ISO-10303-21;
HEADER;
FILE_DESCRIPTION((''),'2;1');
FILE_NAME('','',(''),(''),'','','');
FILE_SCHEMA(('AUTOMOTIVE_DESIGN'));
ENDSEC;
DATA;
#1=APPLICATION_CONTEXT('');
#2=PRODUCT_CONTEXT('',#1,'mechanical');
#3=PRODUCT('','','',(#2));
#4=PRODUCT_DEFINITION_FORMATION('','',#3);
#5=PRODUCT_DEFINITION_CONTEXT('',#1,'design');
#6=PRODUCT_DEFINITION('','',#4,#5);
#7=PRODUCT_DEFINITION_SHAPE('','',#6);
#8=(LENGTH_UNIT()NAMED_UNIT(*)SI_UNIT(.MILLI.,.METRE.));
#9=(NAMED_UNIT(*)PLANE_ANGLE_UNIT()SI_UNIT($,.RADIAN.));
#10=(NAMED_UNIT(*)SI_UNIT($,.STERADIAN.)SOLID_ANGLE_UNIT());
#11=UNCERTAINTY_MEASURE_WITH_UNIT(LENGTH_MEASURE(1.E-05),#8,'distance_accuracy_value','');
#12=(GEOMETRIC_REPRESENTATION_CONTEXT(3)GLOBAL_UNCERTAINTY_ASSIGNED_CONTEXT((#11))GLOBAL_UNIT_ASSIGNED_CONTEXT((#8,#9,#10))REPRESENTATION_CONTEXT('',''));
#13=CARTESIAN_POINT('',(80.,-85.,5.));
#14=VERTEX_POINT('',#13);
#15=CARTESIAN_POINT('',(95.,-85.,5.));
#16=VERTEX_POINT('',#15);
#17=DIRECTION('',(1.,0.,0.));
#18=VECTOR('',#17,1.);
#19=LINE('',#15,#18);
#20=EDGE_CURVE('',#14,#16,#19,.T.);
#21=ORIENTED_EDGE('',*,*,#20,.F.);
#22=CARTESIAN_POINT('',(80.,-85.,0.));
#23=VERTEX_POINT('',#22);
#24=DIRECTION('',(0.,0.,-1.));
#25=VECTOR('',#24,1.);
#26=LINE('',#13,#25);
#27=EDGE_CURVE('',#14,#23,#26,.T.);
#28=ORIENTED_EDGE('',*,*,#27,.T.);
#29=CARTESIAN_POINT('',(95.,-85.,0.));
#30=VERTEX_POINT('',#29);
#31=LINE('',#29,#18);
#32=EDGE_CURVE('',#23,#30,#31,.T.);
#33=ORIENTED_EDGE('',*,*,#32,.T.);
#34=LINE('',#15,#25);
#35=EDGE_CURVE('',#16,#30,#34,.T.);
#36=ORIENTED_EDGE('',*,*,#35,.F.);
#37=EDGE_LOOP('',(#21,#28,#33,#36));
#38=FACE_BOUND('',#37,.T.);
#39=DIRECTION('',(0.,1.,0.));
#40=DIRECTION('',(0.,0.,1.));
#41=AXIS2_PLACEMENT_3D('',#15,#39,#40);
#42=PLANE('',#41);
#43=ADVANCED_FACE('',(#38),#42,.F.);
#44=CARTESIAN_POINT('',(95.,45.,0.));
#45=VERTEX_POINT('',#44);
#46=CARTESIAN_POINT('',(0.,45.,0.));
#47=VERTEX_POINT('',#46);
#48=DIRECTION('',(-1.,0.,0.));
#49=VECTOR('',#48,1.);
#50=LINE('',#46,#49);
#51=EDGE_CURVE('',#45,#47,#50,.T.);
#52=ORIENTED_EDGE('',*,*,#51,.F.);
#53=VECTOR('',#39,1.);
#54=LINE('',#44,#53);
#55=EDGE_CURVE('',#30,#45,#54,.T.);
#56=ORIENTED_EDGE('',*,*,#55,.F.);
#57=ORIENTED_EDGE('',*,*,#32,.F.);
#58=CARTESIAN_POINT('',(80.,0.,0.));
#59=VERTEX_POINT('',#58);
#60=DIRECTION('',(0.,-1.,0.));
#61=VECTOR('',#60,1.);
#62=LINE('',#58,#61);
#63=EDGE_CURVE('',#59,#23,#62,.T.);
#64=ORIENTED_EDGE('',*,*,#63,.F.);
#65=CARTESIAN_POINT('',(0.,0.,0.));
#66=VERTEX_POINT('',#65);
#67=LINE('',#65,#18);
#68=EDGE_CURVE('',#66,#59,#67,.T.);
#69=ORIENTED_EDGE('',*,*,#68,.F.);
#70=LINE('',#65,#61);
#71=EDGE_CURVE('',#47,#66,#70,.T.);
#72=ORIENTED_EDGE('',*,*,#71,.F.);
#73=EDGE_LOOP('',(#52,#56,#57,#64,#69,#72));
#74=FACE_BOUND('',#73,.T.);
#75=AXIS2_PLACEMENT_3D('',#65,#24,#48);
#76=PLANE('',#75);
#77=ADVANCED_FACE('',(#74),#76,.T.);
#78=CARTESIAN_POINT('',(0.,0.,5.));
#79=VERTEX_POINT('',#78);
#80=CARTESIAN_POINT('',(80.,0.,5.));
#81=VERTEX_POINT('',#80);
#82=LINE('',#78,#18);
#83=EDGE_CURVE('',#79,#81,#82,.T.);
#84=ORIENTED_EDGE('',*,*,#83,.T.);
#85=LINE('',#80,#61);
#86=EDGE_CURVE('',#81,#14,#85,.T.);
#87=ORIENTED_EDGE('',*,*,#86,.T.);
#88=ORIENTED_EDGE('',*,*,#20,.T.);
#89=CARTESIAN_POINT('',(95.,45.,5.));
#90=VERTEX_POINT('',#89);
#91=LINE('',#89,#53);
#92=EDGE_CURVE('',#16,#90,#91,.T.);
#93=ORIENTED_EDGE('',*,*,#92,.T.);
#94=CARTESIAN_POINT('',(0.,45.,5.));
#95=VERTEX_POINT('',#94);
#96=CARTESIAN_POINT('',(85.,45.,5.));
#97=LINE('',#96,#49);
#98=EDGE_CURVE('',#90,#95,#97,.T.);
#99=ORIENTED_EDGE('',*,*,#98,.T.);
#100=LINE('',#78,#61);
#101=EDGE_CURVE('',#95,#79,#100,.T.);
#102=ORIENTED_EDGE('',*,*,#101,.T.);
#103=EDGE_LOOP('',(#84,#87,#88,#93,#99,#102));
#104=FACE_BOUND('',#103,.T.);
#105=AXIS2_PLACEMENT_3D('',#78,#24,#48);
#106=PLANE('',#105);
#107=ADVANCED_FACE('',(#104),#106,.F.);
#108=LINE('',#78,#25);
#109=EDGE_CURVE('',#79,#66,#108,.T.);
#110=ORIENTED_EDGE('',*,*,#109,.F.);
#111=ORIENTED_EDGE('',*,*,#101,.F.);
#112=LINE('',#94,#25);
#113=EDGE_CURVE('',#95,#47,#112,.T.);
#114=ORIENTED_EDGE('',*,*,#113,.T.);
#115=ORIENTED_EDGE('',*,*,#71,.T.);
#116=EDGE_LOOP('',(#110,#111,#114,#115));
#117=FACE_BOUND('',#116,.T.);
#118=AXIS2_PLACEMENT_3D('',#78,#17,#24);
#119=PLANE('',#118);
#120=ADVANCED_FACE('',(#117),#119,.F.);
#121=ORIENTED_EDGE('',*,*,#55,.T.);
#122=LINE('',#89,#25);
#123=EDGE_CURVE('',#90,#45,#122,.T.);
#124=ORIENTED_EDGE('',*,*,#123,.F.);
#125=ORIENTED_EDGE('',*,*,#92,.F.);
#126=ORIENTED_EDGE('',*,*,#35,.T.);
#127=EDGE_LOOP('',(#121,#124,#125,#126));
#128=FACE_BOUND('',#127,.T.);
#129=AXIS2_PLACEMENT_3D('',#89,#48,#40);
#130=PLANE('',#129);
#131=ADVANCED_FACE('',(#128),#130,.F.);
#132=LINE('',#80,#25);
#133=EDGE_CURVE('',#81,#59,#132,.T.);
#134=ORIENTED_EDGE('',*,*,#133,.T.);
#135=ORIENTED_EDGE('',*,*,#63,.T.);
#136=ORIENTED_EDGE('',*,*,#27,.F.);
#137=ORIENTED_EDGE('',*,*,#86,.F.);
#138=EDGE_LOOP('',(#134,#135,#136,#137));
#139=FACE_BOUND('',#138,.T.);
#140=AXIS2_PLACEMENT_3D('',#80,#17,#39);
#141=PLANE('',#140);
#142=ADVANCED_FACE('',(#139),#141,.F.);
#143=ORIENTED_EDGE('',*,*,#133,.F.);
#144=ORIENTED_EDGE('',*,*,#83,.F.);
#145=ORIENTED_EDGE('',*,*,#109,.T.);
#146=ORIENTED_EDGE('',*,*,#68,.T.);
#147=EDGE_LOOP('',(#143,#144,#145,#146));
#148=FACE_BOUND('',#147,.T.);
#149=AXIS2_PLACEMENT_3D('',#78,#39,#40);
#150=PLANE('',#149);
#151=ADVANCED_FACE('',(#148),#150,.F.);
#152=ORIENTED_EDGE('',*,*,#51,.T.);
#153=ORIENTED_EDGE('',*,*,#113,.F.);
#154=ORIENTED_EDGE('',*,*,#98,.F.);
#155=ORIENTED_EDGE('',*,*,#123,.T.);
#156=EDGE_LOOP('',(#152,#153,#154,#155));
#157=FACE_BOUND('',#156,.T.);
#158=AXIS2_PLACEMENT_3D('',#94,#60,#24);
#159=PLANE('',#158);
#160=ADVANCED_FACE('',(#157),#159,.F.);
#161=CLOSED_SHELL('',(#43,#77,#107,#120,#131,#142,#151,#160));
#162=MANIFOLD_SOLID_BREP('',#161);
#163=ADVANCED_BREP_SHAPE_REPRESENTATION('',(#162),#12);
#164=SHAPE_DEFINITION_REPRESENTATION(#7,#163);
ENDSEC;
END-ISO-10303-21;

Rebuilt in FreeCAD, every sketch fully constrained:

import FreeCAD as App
import Part
import Sketcher

V = App.Vector
Q = App.Units.Quantity


def add_polygon(sketch, points):
    """Adds a closed chain of lines whose ends are joined by coincident constraints."""
    first, n = sketch.GeometryCount, len(points)
    for a, b in zip(points, points[1:] + points[:1]):
        sketch.addGeometry(Part.LineSegment(App.Vector(*a, 0), App.Vector(*b, 0)), False)
    for i in range(n):
        sketch.addConstraint(Sketcher.Constraint("Coincident", first + i, 2, first + (i + 1) % n, 1))

doc = App.newDocument("Part")
body = doc.addObject("PartDesign::Body", "Body")

sketch1 = body.newObject("Sketcher::SketchObject", "Sketch")
sketch1.AttachmentSupport = (doc.getObject("XY_Plane"), [""])
sketch1.MapMode = "FlatFace"
add_polygon(sketch1, [(0, 0), (80, 0), (80, -85), (95, -85), (95, 45), (0, 45)])
sketch1.addConstraint([
    Sketcher.Constraint("Horizontal", 0),
    Sketcher.Constraint("Vertical", 1),
    Sketcher.Constraint("Horizontal", 2),
    Sketcher.Constraint("Vertical", 3),
    Sketcher.Constraint("Horizontal", 4),
    Sketcher.Constraint("Vertical", 5),
    Sketcher.Constraint("Coincident", 5, 2, -1, 1),
    Sketcher.Constraint("DistanceX", 0, 1, 0, 2, Q("80 mm")),
    Sketcher.Constraint("DistanceX", 2, 1, 2, 2, Q("15 mm")),
    Sketcher.Constraint("DistanceY", 1, 2, 1, 1, Q("85 mm")),
    Sketcher.Constraint("DistanceY", 3, 1, 3, 2, Q("130 mm")),
])
pad1 = body.newObject("PartDesign::Pad", "Pad")
pad1.Profile = sketch1
pad1.Length = 5

doc.recompute()
